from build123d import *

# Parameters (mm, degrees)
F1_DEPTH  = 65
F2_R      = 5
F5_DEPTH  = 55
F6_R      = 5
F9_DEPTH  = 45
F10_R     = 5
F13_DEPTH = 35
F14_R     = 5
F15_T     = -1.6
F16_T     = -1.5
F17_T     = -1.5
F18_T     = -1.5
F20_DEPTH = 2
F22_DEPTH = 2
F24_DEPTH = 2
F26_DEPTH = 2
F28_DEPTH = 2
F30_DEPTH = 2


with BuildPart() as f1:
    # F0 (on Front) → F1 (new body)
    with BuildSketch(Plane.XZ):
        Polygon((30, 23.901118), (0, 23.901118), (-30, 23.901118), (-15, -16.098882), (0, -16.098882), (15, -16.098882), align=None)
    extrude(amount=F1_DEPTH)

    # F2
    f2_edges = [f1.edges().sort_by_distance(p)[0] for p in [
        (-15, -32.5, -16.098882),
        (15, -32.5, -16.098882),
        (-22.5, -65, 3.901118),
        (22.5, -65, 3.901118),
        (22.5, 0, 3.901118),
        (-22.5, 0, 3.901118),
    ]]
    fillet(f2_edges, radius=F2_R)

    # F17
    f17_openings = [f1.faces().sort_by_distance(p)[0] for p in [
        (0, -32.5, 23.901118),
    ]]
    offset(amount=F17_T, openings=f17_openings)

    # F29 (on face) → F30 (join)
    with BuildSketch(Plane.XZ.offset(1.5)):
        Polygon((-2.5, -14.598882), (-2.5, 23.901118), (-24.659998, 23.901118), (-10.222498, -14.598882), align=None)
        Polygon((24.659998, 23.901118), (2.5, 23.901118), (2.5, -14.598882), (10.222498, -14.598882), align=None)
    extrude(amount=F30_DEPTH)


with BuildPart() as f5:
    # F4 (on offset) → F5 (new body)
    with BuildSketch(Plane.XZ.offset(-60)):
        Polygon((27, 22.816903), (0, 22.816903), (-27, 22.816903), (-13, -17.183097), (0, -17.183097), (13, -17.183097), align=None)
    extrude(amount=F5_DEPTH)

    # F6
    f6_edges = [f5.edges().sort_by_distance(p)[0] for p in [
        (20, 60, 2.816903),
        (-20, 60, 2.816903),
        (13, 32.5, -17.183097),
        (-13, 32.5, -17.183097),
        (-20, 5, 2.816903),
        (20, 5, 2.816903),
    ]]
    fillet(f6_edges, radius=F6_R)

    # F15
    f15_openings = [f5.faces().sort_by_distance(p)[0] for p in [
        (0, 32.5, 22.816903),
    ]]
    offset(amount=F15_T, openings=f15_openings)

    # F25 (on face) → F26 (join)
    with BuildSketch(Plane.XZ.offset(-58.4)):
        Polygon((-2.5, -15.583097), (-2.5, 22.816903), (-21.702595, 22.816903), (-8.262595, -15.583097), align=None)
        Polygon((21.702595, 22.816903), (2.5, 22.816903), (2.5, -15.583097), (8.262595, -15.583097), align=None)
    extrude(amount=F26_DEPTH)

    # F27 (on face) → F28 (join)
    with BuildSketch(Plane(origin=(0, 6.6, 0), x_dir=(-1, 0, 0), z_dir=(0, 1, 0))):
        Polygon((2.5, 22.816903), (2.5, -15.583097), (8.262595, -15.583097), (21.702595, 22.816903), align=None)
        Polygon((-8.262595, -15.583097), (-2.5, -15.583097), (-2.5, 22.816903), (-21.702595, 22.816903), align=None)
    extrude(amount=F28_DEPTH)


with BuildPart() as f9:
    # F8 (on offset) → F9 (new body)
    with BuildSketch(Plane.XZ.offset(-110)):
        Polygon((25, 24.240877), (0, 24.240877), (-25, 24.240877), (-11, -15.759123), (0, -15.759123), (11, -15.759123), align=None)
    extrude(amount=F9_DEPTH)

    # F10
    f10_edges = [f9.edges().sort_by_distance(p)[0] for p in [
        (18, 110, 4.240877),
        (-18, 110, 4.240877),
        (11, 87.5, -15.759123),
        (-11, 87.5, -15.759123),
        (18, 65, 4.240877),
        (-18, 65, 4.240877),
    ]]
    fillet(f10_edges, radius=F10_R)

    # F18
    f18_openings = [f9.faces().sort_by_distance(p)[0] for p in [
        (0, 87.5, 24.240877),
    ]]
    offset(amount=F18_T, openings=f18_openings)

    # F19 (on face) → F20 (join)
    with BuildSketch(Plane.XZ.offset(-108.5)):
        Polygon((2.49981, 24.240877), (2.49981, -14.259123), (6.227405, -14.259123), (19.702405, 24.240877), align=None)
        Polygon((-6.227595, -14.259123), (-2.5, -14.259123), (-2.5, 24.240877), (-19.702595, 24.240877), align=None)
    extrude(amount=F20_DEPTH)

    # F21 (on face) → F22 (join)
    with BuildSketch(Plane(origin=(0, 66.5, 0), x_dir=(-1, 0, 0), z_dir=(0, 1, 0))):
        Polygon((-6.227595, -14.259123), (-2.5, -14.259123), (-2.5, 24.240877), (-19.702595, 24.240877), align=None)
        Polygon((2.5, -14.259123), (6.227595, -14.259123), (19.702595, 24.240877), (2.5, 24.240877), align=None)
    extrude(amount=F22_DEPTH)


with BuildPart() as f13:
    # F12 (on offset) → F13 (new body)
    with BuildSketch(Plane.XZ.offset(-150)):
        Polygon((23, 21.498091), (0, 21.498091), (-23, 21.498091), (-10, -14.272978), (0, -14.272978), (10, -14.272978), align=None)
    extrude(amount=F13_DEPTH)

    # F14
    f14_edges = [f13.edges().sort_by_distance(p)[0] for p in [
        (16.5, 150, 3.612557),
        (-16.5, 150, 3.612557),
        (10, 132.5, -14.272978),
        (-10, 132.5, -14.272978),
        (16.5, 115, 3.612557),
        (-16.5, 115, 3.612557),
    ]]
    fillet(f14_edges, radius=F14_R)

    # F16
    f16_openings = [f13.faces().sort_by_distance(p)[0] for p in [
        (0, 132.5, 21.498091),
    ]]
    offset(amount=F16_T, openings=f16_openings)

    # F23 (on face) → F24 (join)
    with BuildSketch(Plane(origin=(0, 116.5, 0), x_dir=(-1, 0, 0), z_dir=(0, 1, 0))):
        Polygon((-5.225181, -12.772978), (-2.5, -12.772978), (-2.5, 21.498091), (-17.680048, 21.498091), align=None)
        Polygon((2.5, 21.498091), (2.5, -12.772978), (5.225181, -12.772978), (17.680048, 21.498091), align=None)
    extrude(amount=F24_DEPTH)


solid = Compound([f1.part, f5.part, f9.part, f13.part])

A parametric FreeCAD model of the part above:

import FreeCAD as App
import Part
import Sketcher


def edges_at(feature, points):
    """Names of the edges that pass closest to the given points."""
    edges = feature.Shape.Edges
    near = lambda p: min(range(len(edges)), key=lambda i: edges[i].distToShape(Part.Vertex(*p))[0])
    return sorted({f"Edge{near(p) + 1}" for p in points})


def faces_at(feature, points):
    """Names of the faces that lie closest to the given points."""
    faces = feature.Shape.Faces
    near = lambda p: min(range(len(faces)), key=lambda i: faces[i].distToShape(Part.Vertex(*p))[0])
    return sorted({f"Face{near(p) + 1}" for p in points})


def add_polygon(sketch, points):
    """Adds a closed chain of lines whose ends are joined by coincident constraints."""
    first, n = sketch.GeometryCount, len(points)
    for a, b in zip(points, points[1:] + points[:1]):
        sketch.addGeometry(Part.LineSegment(App.Vector(*a, 0), App.Vector(*b, 0)), False)
    for i in range(n):
        sketch.addConstraint(Sketcher.Constraint("Coincident", first + i, 2, first + (i + 1) % n, 1))

doc = App.newDocument("Part")
params = doc.addObject("Spreadsheet::Sheet", "Params")
for row, (alias, value) in enumerate([
    ("sketch1_width", "60 mm"),
    ("sketch1_width2", "30 mm"),
    ("pad1_length", "65 mm"),
    ("fillet_radius", "5 mm"),
    ("thickness_wall", "1.5 mm"),
    ("sketch2_height", "38.5 mm"),
    ("sketch2_width", "22.159998 mm"),
    ("pad2_length", "2 mm"),
    ("sketch3_width", "54 mm"),
    ("sketch3_width2", "26 mm"),
    ("pad3_length", "55 mm"),
    ("fillet2_radius", "5 mm"),
    ("thickness2_wall", "1.6 mm"),
    ("sketch4_height", "38.4 mm"),
    ("pad4_length", "2 mm"),
    ("sketch5_height", "38.4 mm"),
    ("pad5_length", "2 mm"),
    ("sketch6_width", "50 mm"),
    ("sketch6_width2", "22 mm"),
    ("pad6_length", "45 mm"),
    ("fillet3_radius", "5 mm"),
    ("thickness3_wall", "1.5 mm"),
    ("sketch7_height", "38.5 mm"),
    ("pad7_length", "2 mm"),
    ("sketch8_height", "38.5 mm"),
    ("pad8_length", "2 mm"),
    ("sketch9_width", "46 mm"),
    ("sketch9_width2", "20 mm"),
    ("pad9_length", "35 mm"),
    ("fillet4_radius", "5 mm"),
    ("thickness4_wall", "1.5 mm"),
    ("pad10_length", "2 mm"),
], start=1):
    params.set(f"A{row}", alias)
    params.set(f"B{row}", "=" + value)
    params.setAlias(f"B{row}", alias)

body = doc.addObject("PartDesign::Body", "Body")

sketch1 = body.newObject("Sketcher::SketchObject", "Sketch")
sketch1.AttachmentSupport = (doc.getObject("XZ_Plane"), [""])
sketch1.MapMode = "FlatFace"
add_polygon(sketch1, [(30, 23.901118), (-30, 23.901118), (-15, -16.098882), (15, -16.098882)])
sketch1.addConstraint([
    Sketcher.Constraint("Horizontal", 0),
    Sketcher.Constraint("Horizontal", 2),
    Sketcher.Constraint("Equal", 1, 3),
    Sketcher.Constraint("DistanceX", 0, 2, 0, 1, 60.0),
    Sketcher.Constraint("DistanceX", 2, 1, 2, 2, 30.0),
    Sketcher.Constraint("DistanceX", 0, 2, -1, 1, 30.0),
    Sketcher.Constraint("DistanceY", 1, 2, 0, 2, 40.0),
    Sketcher.Constraint("DistanceY", -1, 1, 0, 2, 23.901118),
])
sketch1.setExpression("Constraints[7]", "Params.sketch1_width")
sketch1.setExpression("Constraints[8]", "Params.sketch1_width2")
pad1 = body.newObject("PartDesign::Pad", "Pad")
pad1.Profile = sketch1
pad1.setExpression("Length", "Params.pad1_length")
doc.recompute()

fillet = body.newObject("PartDesign::Fillet", "Fillet")
fillet.Base = (pad1, edges_at(pad1, [
    (-15, -32.5, -16.099),
    (15, -32.5, -16.099),
    (-22.5, -65, 3.901),
    (22.5, -65, 3.901),
    (22.5, 0, 3.901),
    (-22.5, 0, 3.901),
]))
fillet.setExpression("Radius", "Params.fillet_radius")
doc.recompute()

thickness = body.newObject("PartDesign::Thickness", "Thickness")
thickness.Base = (fillet, faces_at(fillet, [(0, -32.5, 23.901)]))
thickness.setExpression("Value", "Params.thickness_wall")
thickness.Reversed = True
thickness.Join = "Arc"

sketch2 = body.newObject("Sketcher::SketchObject", "Sketch001")
sketch2.AttachmentSupport = (doc.getObject("XZ_Plane"), [""])
sketch2.MapMode = "FlatFace"
sketch2.AttachmentOffset = App.Placement(App.Vector(0, 0, 1.5), App.Rotation())
add_polygon(sketch2, [(-2.5, -14.598882), (-2.5, 23.901118), (-24.659998, 23.901118), (-10.222498, -14.598882)])
add_polygon(sketch2, [(24.659998, 23.901118), (2.5, 23.901118), (2.5, -14.598882), (10.222498, -14.598882)])
sketch2.addConstraint([
    Sketcher.Constraint("Vertical", 0),
    Sketcher.Constraint("Horizontal", 1),
    Sketcher.Constraint("Horizontal", 3),
    Sketcher.Constraint("Horizontal", 4),
    Sketcher.Constraint("Vertical", 5),
    Sketcher.Constraint("Horizontal", 6),
    Sketcher.Constraint("Symmetric", 0, 2, 4, 2, -2),
    Sketcher.Constraint("Symmetric", 2, 2, 6, 2, -2),
    Sketcher.Constraint("Equal", 1, 4),
    Sketcher.Constraint("DistanceY", 0, 1, 0, 2, 38.5),
    Sketcher.Constraint("DistanceX", 0, 2, 4, 2, 5.0),
    Sketcher.Constraint("DistanceX", 1, 2, 1, 1, 22.159998),
    Sketcher.Constraint("DistanceX", 1, 2, 2, 2, 14.4375),
    Sketcher.Constraint("DistanceY", -1, 1, 0, 2, 23.901118),
])
sketch2.setExpression("Constraints[17]", "Params.sketch2_height")
sketch2.setExpression("Constraints[19]", "Params.sketch2_width")
pad2 = body.newObject("PartDesign::Pad", "Pad001")
pad2.Profile = sketch2
pad2.setExpression("Length", "Params.pad2_length")
body2 = doc.addObject("PartDesign::Body", "Body001")

sketch3 = body2.newObject("Sketcher::SketchObject", "Sketch002")
sketch3.AttachmentSupport = (doc.getObject("XZ_Plane001"), [""])
sketch3.MapMode = "FlatFace"
sketch3.AttachmentOffset = App.Placement(App.Vector(0, 0, -60), App.Rotation())
add_polygon(sketch3, [(27, 22.816903), (-27, 22.816903), (-13, -17.183097), (13, -17.183097)])
sketch3.addConstraint([
    Sketcher.Constraint("Horizontal", 0),
    Sketcher.Constraint("Horizontal", 2),
    Sketcher.Constraint("Equal", 1, 3),
    Sketcher.Constraint("DistanceX", 0, 2, 0, 1, 54.0),
    Sketcher.Constraint("DistanceX", 2, 1, 2, 2, 26.0),
    Sketcher.Constraint("DistanceX", 0, 2, -1, 1, 27.0),
    Sketcher.Constraint("DistanceY", 1, 2, 0, 2, 40.0),
    Sketcher.Constraint("DistanceY", -1, 1, 0, 2, 22.816903),
])
sketch3.setExpression("Constraints[7]", "Params.sketch3_width")
sketch3.setExpression("Constraints[8]", "Params.sketch3_width2")
pad3 = body2.newObject("PartDesign::Pad", "Pad002")
pad3.Profile = sketch3
pad3.setExpression("Length", "Params.pad3_length")
doc.recompute()

fillet2 = body2.newObject("PartDesign::Fillet", "Fillet001")
fillet2.Base = (pad3, edges_at(pad3, [
    (20, 60, 2.817),
    (-20, 60, 2.817),
    (13, 32.5, -17.183),
    (-13, 32.5, -17.183),
    (-20, 5, 2.817),
    (20, 5, 2.817),
]))
fillet2.setExpression("Radius", "Params.fillet2_radius")
doc.recompute()

thickness2 = body2.newObject("PartDesign::Thickness", "Thickness001")
thickness2.Base = (fillet2, faces_at(fillet2, [(0, 32.5, 22.817)]))
thickness2.setExpression("Value", "Params.thickness2_wall")
thickness2.Reversed = True
thickness2.Join = "Arc"

sketch4 = body2.newObject("Sketcher::SketchObject", "Sketch003")
sketch4.AttachmentSupport = (doc.getObject("XZ_Plane001"), [""])
sketch4.MapMode = "FlatFace"
sketch4.AttachmentOffset = App.Placement(App.Vector(0, 0, -58.4), App.Rotation())
add_polygon(sketch4, [(-2.5, -15.583097), (-2.5, 22.816903), (-21.702595, 22.816903), (-8.262595, -15.583097)])
add_polygon(sketch4, [(21.702595, 22.816903), (2.5, 22.816903), (2.5, -15.583097), (8.262595, -15.583097)])
sketch4.addConstraint([
    Sketcher.Constraint("Vertical", 0),
    Sketcher.Constraint("Horizontal", 1),
    Sketcher.Constraint("Horizontal", 3),
    Sketcher.Constraint("Horizontal", 4),
    Sketcher.Constraint("Vertical", 5),
    Sketcher.Constraint("Horizontal", 6),
    Sketcher.Constraint("Symmetric", 0, 2, 4, 2, -2),
    Sketcher.Constraint("Symmetric", 2, 2, 6, 2, -2),
    Sketcher.Constraint("Equal", 1, 4),
    Sketcher.Constraint("DistanceY", 0, 1, 0, 2, 38.4),
    Sketcher.Constraint("DistanceX", 0, 2, 4, 2, 5.0),
    Sketcher.Constraint("DistanceX", 1, 2, 2, 2, 13.44),
    Sketcher.Constraint("DistanceX", 1, 2, 1, 1, 19.202595),
    Sketcher.Constraint("DistanceY", -1, 1, 0, 2, 22.816903),
])
sketch4.setExpression("Constraints[17]", "Params.sketch4_height")
pad4 = body2.newObject("PartDesign::Pad", "Pad003")
pad4.Profile = sketch4
pad4.setExpression("Length", "Params.pad4_length")

sketch5 = body2.newObject("Sketcher::SketchObject", "Sketch004")
sketch5.AttachmentSupport = (doc.getObject("XZ_Plane001"), [""])
sketch5.MapMode = "FlatFace"
sketch5.AttachmentOffset = App.Placement(App.Vector(0, 0, -6.6), App.Rotation())
add_polygon(sketch5, [(-2.5, 22.816903), (-2.5, -15.583097), (-8.262595, -15.583097), (-21.702595, 22.816903)])
add_polygon(sketch5, [(8.262595, -15.583097), (2.5, -15.583097), (2.5, 22.816903), (21.702595, 22.816903)])
sketch5.addConstraint([
    Sketcher.Constraint("Vertical", 0),
    Sketcher.Constraint("Horizontal", 1),
    Sketcher.Constraint("Horizontal", 3),
    Sketcher.Constraint("Horizontal", 4),
    Sketcher.Constraint("Vertical", 5),
    Sketcher.Constraint("Horizontal", 6),
    Sketcher.Constraint("Symmetric", 0, 2, 4, 2, -2),
    Sketcher.Constraint("Symmetric", 2, 2, 6, 2, -2),
    Sketcher.Constraint("Equal", 1, 4),
    Sketcher.Constraint("DistanceY", 0, 2, 0, 1, 38.4),
    Sketcher.Constraint("DistanceX", 0, 2, 4, 2, 5.0),
    Sketcher.Constraint("DistanceX", 2, 2, 1, 2, 13.44),
    Sketcher.Constraint("DistanceX", 1, 2, 1, 1, 5.762595),
    Sketcher.Constraint("DistanceY", 0, 2, -1, 1, 15.583097),
])
sketch5.setExpression("Constraints[17]", "Params.sketch5_height")
pad5 = body2.newObject("PartDesign::Pad", "Pad004")
pad5.Profile = sketch5
pad5.setExpression("Length", "Params.pad5_length")
pad5.Reversed = True
body3 = doc.addObject("PartDesign::Body", "Body002")

sketch6 = body3.newObject("Sketcher::SketchObject", "Sketch005")
sketch6.AttachmentSupport = (doc.getObject("XZ_Plane002"), [""])
sketch6.MapMode = "FlatFace"
sketch6.AttachmentOffset = App.Placement(App.Vector(0, 0, -110), App.Rotation())
add_polygon(sketch6, [(25, 24.240877), (-25, 24.240877), (-11, -15.759123), (11, -15.759123)])
sketch6.addConstraint([
    Sketcher.Constraint("Horizontal", 0),
    Sketcher.Constraint("Horizontal", 2),
    Sketcher.Constraint("Equal", 1, 3),
    Sketcher.Constraint("DistanceX", 0, 2, 0, 1, 50.0),
    Sketcher.Constraint("DistanceX", 2, 1, 2, 2, 22.0),
    Sketcher.Constraint("DistanceX", 0, 2, -1, 1, 25.0),
    Sketcher.Constraint("DistanceY", 1, 2, 0, 2, 40.0),
    Sketcher.Constraint("DistanceY", -1, 1, 0, 2, 24.240877),
])
sketch6.setExpression("Constraints[7]", "Params.sketch6_width")
sketch6.setExpression("Constraints[8]", "Params.sketch6_width2")
pad6 = body3.newObject("PartDesign::Pad", "Pad005")
pad6.Profile = sketch6
pad6.setExpression("Length", "Params.pad6_length")
doc.recompute()

fillet3 = body3.newObject("PartDesign::Fillet", "Fillet002")
fillet3.Base = (pad6, edges_at(pad6, [
    (18, 110, 4.241),
    (-18, 110, 4.241),
    (11, 87.5, -15.759),
    (-11, 87.5, -15.759),
    (18, 65, 4.241),
    (-18, 65, 4.241),
]))
fillet3.setExpression("Radius", "Params.fillet3_radius")
doc.recompute()

thickness3 = body3.newObject("PartDesign::Thickness", "Thickness002")
thickness3.Base = (fillet3, faces_at(fillet3, [(0, 87.5, 24.241)]))
thickness3.setExpression("Value", "Params.thickness3_wall")
thickness3.Reversed = True
thickness3.Join = "Arc"

sketch7 = body3.newObject("Sketcher::SketchObject", "Sketch006")
sketch7.AttachmentSupport = (doc.getObject("XZ_Plane002"), [""])
sketch7.MapMode = "FlatFace"
sketch7.AttachmentOffset = App.Placement(App.Vector(0, 0, -108.5), App.Rotation())
add_polygon(sketch7, [(2.49981, 24.240877), (2.49981, -14.259123), (6.227405, -14.259123), (19.702405, 24.240877)])
add_polygon(sketch7, [(-6.227595, -14.259123), (-2.5, -14.259123), (-2.5, 24.240877), (-19.702595, 24.240877)])
sketch7.addConstraint([
    Sketcher.Constraint("Vertical", 0),
    Sketcher.Constraint("Horizontal", 1),
    Sketcher.Constraint("Horizontal", 3),
    Sketcher.Constraint("Horizontal", 4),
    Sketcher.Constraint("Vertical", 5),
    Sketcher.Constraint("Horizontal", 6),
    Sketcher.Constraint("Horizontal", 1, 2, 4, 2),
    Sketcher.Constraint("Horizontal", 3, 2, 5, 2),
    Sketcher.Constraint("Equal", 1, 4),
    Sketcher.Constraint("Equal", 3, 6),
    Sketcher.Constraint("DistanceY", 0, 2, 0, 1, 38.5),
    Sketcher.Constraint("DistanceX", 4, 2, -1, 1, 2.5),
    Sketcher.Constraint("DistanceX", 1, 2, 2, 2, 13.475),
    Sketcher.Constraint("DistanceX", 6, 2, 2, 2, 39.405),
    Sketcher.Constraint("DistanceX", 1, 1, 1, 2, 3.727595),
    Sketcher.Constraint("DistanceY", 0, 2, -1, 1, 14.259123),
])
sketch7.setExpression("Constraints[18]", "Params.sketch7_height")
pad7 = body3.newObject("PartDesign::Pad", "Pad006")
pad7.Profile = sketch7
pad7.setExpression("Length", "Params.pad7_length")

sketch8 = body3.newObject("Sketcher::SketchObject", "Sketch007")
sketch8.AttachmentSupport = (doc.getObject("XZ_Plane002"), [""])
sketch8.MapMode = "FlatFace"
sketch8.AttachmentOffset = App.Placement(App.Vector(0, 0, -66.5), App.Rotation())
add_polygon(sketch8, [(6.227595, -14.259123), (2.5, -14.259123), (2.5, 24.240877), (19.702595, 24.240877)])
add_polygon(sketch8, [(-2.5, -14.259123), (-6.227595, -14.259123), (-19.702595, 24.240877), (-2.5, 24.240877)])
sketch8.addConstraint([
    Sketcher.Constraint("Horizontal", 0),
    Sketcher.Constraint("Vertical", 1),
    Sketcher.Constraint("Horizontal", 2),
    Sketcher.Constraint("Horizontal", 4),
    Sketcher.Constraint("Horizontal", 6),
    Sketcher.Constraint("Vertical", 7),
    Sketcher.Constraint("Symmetric", 3, 2, 4, 2, -2),
    Sketcher.Constraint("Symmetric", 2, 2, 5, 2, -2),
    Sketcher.Constraint("Equal", 0, 4),
    Sketcher.Constraint("DistanceY", 1, 1, 1, 2, 38.5),
    Sketcher.Constraint("DistanceX", 6, 2, 1, 2, 5.0),
    Sketcher.Constraint("DistanceX", 3, 2, 2, 2, 13.475),
    Sketcher.Constraint("DistanceX", 0, 2, 0, 1, 3.727595),
    Sketcher.Constraint("DistanceY", 0, 2, -1, 1, 14.259123),
])
sketch8.setExpression("Constraints[17]", "Params.sketch8_height")
pad8 = body3.newObject("PartDesign::Pad", "Pad007")
pad8.Profile = sketch8
pad8.setExpression("Length", "Params.pad8_length")
pad8.Reversed = True
body4 = doc.addObject("PartDesign::Body", "Body003")

sketch9 = body4.newObject("Sketcher::SketchObject", "Sketch008")
sketch9.AttachmentSupport = (doc.getObject("XZ_Plane003"), [""])
sketch9.MapMode = "FlatFace"
sketch9.AttachmentOffset = App.Placement(App.Vector(0, 0, -150), App.Rotation())
add_polygon(sketch9, [(23, 21.498091), (-23, 21.498091), (-10, -14.272978), (10, -14.272978)])
sketch9.addConstraint([
    Sketcher.Constraint("Horizontal", 0),
    Sketcher.Constraint("Horizontal", 2),
    Sketcher.Constraint("Equal", 1, 3),
    Sketcher.Constraint("DistanceX", 0, 2, 0, 1, 46.0),
    Sketcher.Constraint("DistanceX", 2, 1, 2, 2, 20.0),
    Sketcher.Constraint("DistanceX", 0, 2, -1, 1, 23.0),
    Sketcher.Constraint("DistanceY", -1, 1, 0, 2, 21.498091),
    Sketcher.Constraint("DistanceY", 1, 2, 0, 2, 35.771069),
])
sketch9.setExpression("Constraints[7]", "Params.sketch9_width")
sketch9.setExpression("Constraints[8]", "Params.sketch9_width2")
pad9 = body4.newObject("PartDesign::Pad", "Pad008")
pad9.Profile = sketch9
pad9.setExpression("Length", "Params.pad9_length")
doc.recompute()

fillet4 = body4.newObject("PartDesign::Fillet", "Fillet003")
fillet4.Base = (pad9, edges_at(pad9, [
    (16.5, 150, 3.613),
    (-16.5, 150, 3.613),
    (10, 132.5, -14.273),
    (-10, 132.5, -14.273),
    (16.5, 115, 3.613),
    (-16.5, 115, 3.613),
]))
fillet4.setExpression("Radius", "Params.fillet4_radius")
doc.recompute()

thickness4 = body4.newObject("PartDesign::Thickness", "Thickness003")
thickness4.Base = (fillet4, faces_at(fillet4, [(0, 132.5, 21.498)]))
thickness4.setExpression("Value", "Params.thickness4_wall")
thickness4.Reversed = True
thickness4.Join = "Arc"

sketch10 = body4.newObject("Sketcher::SketchObject", "Sketch009")
sketch10.AttachmentSupport = (doc.getObject("XZ_Plane003"), [""])
sketch10.MapMode = "FlatFace"
sketch10.AttachmentOffset = App.Placement(App.Vector(0, 0, -116.5), App.Rotation())
add_polygon(sketch10, [(5.225181, -12.772978), (2.5, -12.772978), (2.5, 21.498091), (17.680048, 21.498091)])
add_polygon(sketch10, [(-2.5, 21.498091), (-2.5, -12.772978), (-5.225181, -12.772978), (-17.680048, 21.498091)])
sketch10.addConstraint([
    Sketcher.Constraint("Horizontal", 0),
    Sketcher.Constraint("Vertical", 1),
    Sketcher.Constraint("Horizontal", 2),
    Sketcher.Constraint("Vertical", 4),
    Sketcher.Constraint("Horizontal", 5),
    Sketcher.Constraint("Horizontal", 7),
    Sketcher.Constraint("Symmetric", 0, 2, 4, 2, -2),
    Sketcher.Constraint("Symmetric", 2, 2, 6, 2, -2),
    Sketcher.Constraint("Equal", 0, 5),
    Sketcher.Constraint("DistanceX", 4, 2, 0, 2, 5.0),
    Sketcher.Constraint("DistanceX", 0, 2, 0, 1, 2.725181),
    Sketcher.Constraint("DistanceY", 1, 1, 1, 2, 34.271069),
    Sketcher.Constraint("Distance", 3, 36.46409),
    Sketcher.Constraint("DistanceY", -1, 1, 1, 2, 21.498091),
])
pad10 = body4.newObject("PartDesign::Pad", "Pad009")
pad10.Profile = sketch10
pad10.setExpression("Length", "Params.pad10_length")
pad10.Reversed = True

doc.recompute()
